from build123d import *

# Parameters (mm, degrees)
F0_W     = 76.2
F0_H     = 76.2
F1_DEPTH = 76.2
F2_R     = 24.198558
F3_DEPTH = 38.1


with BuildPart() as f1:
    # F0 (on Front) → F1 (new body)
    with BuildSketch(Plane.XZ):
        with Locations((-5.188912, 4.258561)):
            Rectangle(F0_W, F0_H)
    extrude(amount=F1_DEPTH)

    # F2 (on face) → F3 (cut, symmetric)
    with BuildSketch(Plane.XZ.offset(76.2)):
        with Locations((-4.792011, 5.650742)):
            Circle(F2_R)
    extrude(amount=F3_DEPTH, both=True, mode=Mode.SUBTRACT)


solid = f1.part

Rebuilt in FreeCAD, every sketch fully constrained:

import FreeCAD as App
import Part
import Sketcher

V = App.Vector
Q = App.Units.Quantity


def add_polygon(sketch, points):
    """Adds a closed chain of lines whose ends are joined by coincident constraints."""
    first, n = sketch.GeometryCount, len(points)
    for a, b in zip(points, points[1:] + points[:1]):
        sketch.addGeometry(Part.LineSegment(App.Vector(*a, 0), App.Vector(*b, 0)), False)
    for i in range(n):
        sketch.addConstraint(Sketcher.Constraint("Coincident", first + i, 2, first + (i + 1) % n, 1))

doc = App.newDocument("Part")
body = doc.addObject("PartDesign::Body", "Body")

# Sketch on XZ plane
sketch1 = body.newObject("Sketcher::SketchObject", "Sketch")
sketch1.AttachmentSupport = (doc.getObject("XZ_Plane"), [""])
sketch1.MapMode = "FlatFace"
add_polygon(sketch1, [(-43, 42), (-43, -34), (33, -34), (33, 42)])  # lines 0-3
sketch1.addConstraint(Sketcher.Constraint("Vertical", 0))
sketch1.addConstraint(Sketcher.Constraint("Horizontal", 1))
sketch1.addConstraint(Sketcher.Constraint("Vertical", 2))
sketch1.addConstraint(Sketcher.Constraint("Horizontal", 3))
sketch1.addConstraint(Sketcher.Constraint("Equal", 3, 0))
sketch1.addConstraint(Sketcher.Constraint("DistanceX", 1, 1, 1, 2, Q("3 in")))
sketch1.addConstraint(Sketcher.Constraint("DistanceY", 0, 2, -1, 1, Q("33.841439 mm")))
sketch1.addConstraint(Sketcher.Constraint("DistanceX", 0, 2, -1, 1, Q("43.288912 mm")))
pad1 = body.newObject("PartDesign::Pad", "Pad")
pad1.Profile = sketch1
pad1.Length = Q("3 in")

# Sketch on XZ plane
sketch2 = body.newObject("Sketcher::SketchObject", "Sketch001")
sketch2.AttachmentSupport = (doc.getObject("XZ_Plane"), [""])
sketch2.MapMode = "FlatFace"
sketch2.AttachmentOffset = App.Placement(V(0, 0, 3 * 25.4), App.Rotation())
sketch2.addGeometry(Part.Circle(V(-5, 6, 0), V(0, 0, 1), 24), False)
sketch2.addConstraint(Sketcher.Constraint("Diameter", 0, Q("48.397116 mm")))
sketch2.addConstraint(Sketcher.Constraint("DistanceX", 0, 3, -1, 1, Q("4.792011 mm")))
sketch2.addConstraint(Sketcher.Constraint("DistanceY", -1, 1, 0, 3, Q("5.650742 mm")))
pocket1 = body.newObject("PartDesign::Pocket", "Pocket")
pocket1.Profile = sketch2
pocket1.Length = Q("3 in")
pocket1.Midplane = True

doc.recompute()
